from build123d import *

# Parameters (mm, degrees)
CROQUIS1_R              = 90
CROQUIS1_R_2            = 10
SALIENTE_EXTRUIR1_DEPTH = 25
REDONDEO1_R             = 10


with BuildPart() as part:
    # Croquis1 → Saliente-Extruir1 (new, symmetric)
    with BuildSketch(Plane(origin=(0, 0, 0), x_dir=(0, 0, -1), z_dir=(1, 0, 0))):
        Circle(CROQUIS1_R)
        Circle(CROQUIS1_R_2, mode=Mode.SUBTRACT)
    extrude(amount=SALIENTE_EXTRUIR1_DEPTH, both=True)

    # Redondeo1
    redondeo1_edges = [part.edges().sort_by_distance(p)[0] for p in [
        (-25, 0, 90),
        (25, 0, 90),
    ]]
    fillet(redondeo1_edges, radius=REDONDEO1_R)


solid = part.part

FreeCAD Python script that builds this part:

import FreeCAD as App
import Part
import Sketcher

V = App.Vector
Q = App.Units.Quantity


def edges_at(feature, points):
    """Names of the edges that pass closest to the given points."""
    edges = feature.Shape.Edges
    near = lambda p: min(range(len(edges)), key=lambda i: edges[i].distToShape(Part.Vertex(*p))[0])
    return sorted({f"Edge{near(p) + 1}" for p in points})

doc = App.newDocument("Part")
body = doc.addObject("PartDesign::Body", "Body")

# Sketch on YZ plane
sketch1 = body.newObject("Sketcher::SketchObject", "Sketch")
sketch1.AttachmentSupport = (doc.getObject("YZ_Plane"), [""])
sketch1.MapMode = "FlatFace"
sketch1.addGeometry([
    Part.Circle(V(0, 0, 0), V(0, 0, 1), 90),
    Part.Circle(V(0, 0, 0), V(0, 0, 1), 10),
], False)
sketch1.addConstraint([
    Sketcher.Constraint("Coincident", 0, 3, -1, 1),
    Sketcher.Constraint("Coincident", 1, 3, -1, 1),
    Sketcher.Constraint("Diameter", 0, Q("180 mm")),
    Sketcher.Constraint("Diameter", 1, Q("20 mm")),
])
pad1 = body.newObject("PartDesign::Pad", "Pad")
pad1.Profile = sketch1
pad1.Length = 50
pad1.Midplane = True
doc.recompute()

fillet = body.newObject("PartDesign::Fillet", "Fillet")
fillet.Base = (pad1, edges_at(pad1, [(-25, 0, 90), (25, 0, 90)]))
fillet.Radius = 10

doc.recompute()
